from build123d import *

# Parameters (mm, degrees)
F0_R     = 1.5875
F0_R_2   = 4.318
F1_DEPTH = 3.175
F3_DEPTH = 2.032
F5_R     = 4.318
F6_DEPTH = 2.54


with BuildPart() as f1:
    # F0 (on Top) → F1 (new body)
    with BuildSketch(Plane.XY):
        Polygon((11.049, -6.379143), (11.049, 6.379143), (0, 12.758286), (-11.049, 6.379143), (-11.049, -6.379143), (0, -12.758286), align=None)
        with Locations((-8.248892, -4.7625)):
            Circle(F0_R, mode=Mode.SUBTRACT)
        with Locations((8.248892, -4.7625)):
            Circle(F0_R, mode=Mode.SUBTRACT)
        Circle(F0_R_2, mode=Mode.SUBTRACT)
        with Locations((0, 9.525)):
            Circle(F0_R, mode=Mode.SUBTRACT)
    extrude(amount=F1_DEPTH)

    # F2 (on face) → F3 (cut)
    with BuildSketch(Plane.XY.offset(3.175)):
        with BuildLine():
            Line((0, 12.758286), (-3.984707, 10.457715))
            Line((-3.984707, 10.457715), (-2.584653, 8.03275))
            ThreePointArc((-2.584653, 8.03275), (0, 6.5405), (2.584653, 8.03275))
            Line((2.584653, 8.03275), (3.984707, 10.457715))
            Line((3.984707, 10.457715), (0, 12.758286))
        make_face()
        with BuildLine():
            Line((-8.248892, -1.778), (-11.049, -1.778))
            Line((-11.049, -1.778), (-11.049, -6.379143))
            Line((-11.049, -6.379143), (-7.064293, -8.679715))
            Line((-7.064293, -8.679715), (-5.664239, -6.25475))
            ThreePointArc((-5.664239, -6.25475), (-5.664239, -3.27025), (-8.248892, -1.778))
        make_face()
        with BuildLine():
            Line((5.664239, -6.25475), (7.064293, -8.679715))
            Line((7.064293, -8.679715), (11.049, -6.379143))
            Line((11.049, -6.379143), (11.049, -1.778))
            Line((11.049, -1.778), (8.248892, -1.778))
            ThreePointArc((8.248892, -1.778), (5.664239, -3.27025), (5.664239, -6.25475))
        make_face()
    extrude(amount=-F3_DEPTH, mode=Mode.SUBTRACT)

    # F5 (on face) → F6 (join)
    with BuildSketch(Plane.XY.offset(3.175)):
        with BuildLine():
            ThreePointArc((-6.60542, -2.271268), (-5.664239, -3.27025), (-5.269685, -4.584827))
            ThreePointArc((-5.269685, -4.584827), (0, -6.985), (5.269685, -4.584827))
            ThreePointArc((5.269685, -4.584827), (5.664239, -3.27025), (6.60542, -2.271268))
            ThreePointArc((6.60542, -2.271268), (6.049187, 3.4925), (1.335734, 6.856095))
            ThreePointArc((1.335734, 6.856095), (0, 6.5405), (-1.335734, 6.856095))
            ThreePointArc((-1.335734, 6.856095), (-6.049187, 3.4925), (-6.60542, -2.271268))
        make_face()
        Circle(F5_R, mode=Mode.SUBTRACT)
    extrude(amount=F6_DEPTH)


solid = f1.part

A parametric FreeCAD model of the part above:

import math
import FreeCAD as App
import Part
import Sketcher

V = App.Vector
Q = App.Units.Quantity

doc = App.newDocument("Part")
body = doc.addObject("PartDesign::Body", "Body")

# Sketch on XY plane
sketch1 = doc.addObject("Sketcher::SketchObject", "Sketch")
body.addObject(sketch1)
sketch1.AttachmentSupport = (doc.XY_Plane, [""])
sketch1.MapMode = "FlatFace"
sketch1.addGeometry([
    Part.LineSegment(V(11.049, -6.379143, 0), V(11.049, 6.379143, 0)),  # 0
    Part.LineSegment(V(11.049, 6.379143, 0), V(0, 12.758286, 0)),  # 1
    Part.LineSegment(V(0, 12.758286, 0), V(-11.049, 6.379143, 0)),  # 2
    Part.LineSegment(V(-11.049, 6.379143, 0), V(-11.049, -6.379143, 0)),  # 3
    Part.LineSegment(V(-11.049, -6.379143, 0), V(0, -12.758286, 0)),  # 4
    Part.LineSegment(V(0, -12.758286, 0), V(11.049, -6.379143, 0)),  # 5
    Part.Circle(V(-8.248892, -4.7625, 0), V(0, 0, 1), 1.5875),  # 6
    Part.Circle(V(8.248892, -4.7625, 0), V(0, 0, 1), 1.5875),  # 7
    Part.Circle(V(0, 0, 0), V(0, 0, 1), 4.318),  # 8
    Part.Circle(V(0, 9.525, 0), V(0, 0, 1), 1.5875),  # 9
], False)
sketch1.addConstraint([
    Sketcher.Constraint("Coincident", 0, 2, 1, 1),
    Sketcher.Constraint("Coincident", 1, 2, 2, 1),
    Sketcher.Constraint("Coincident", 2, 2, 3, 1),
    Sketcher.Constraint("Coincident", 3, 2, 4, 1),
    Sketcher.Constraint("Coincident", 4, 2, 5, 1),
    Sketcher.Constraint("Coincident", 5, 2, 0, 1),
    Sketcher.Constraint("Vertical", 0),
    Sketcher.Constraint("Vertical", 3),
    Sketcher.Constraint("Coincident", 8, 3, -1, 1),
    Sketcher.Constraint("Equal", 6, 7),
    Sketcher.Constraint("Equal", 7, 9),
    Sketcher.Constraint("Symmetric", 0, 2, 3, 2, -1, 1),
    Sketcher.Constraint("Symmetric", 1, 2, 4, 2, -1, 1),
    Sketcher.Constraint("Symmetric", 6, 3, 7, 3, -2),
    Sketcher.Constraint("PointOnObject", 9, 3, -2),
    Sketcher.Constraint("PointOnObject", 1, 2, -2),
    Sketcher.Constraint("Parallel", 2, 5),
    Sketcher.Constraint("Horizontal", 0, 2, 2, 2),
    Sketcher.Constraint("Diameter", 8, Q("0.34 in")),
    Sketcher.Constraint("Diameter", 6, Q("0.125 in")),
    Sketcher.Constraint("Angle", 1, Q("150 deg")),
    Sketcher.Constraint("DistanceX", 2, 2, 0, 2, Q("0.87 in")),
    Sketcher.Constraint("DistanceY", 6, 3, -1, 1, Q("0.1875 in")),
    Sketcher.Constraint("DistanceY", -1, 1, 9, 3, Q("0.375 in")),
    Sketcher.Constraint("DistanceY", 0, 1, 0, 2, 12.758286),
    Sketcher.Constraint("DistanceX", 6, 3, 0, 2, 19.297892),
])
pad1 = doc.addObject("PartDesign::Pad", "Pad")
body.addObject(pad1)
pad1.Profile = sketch1
pad1.Length = Q("0.125 in")

# Sketch on XY plane
sketch2 = doc.addObject("Sketcher::SketchObject", "Sketch001")
body.addObject(sketch2)
sketch2.AttachmentSupport = (doc.XY_Plane, [""])
sketch2.MapMode = "FlatFace"
sketch2.AttachmentOffset = App.Placement(V(0, 0, 0.125 * 25.4), App.Rotation())
sketch2.addGeometry([
    Part.LineSegment(V(0, 12.758286, 0), V(-3.984707, 10.457715, 0)),  # 0
    Part.LineSegment(V(-3.984707, 10.457715, 0), V(-2.584653, 8.03275, 0)),  # 1
    Part.ArcOfCircle(Part.Circle(V(0, 9.525, 0), V(0, 0, 1), 2.9845), math.radians(-149.999996), math.radians(-30.000004)),  # 2
    Part.LineSegment(V(2.584653, 8.03275, 0), V(3.984707, 10.457715, 0)),  # 3
    Part.LineSegment(V(3.984707, 10.457715, 0), V(0, 12.758286, 0)),  # 4
    Part.LineSegment(V(-8.248892, -1.778, 0), V(-11.049, -1.778, 0)),  # 5
    Part.LineSegment(V(-11.049, -1.778, 0), V(-11.049, -6.379143, 0)),  # 6
    Part.LineSegment(V(-11.049, -6.379143, 0), V(-7.064293, -8.679715, 0)),  # 7
    Part.LineSegment(V(-7.064293, -8.679715, 0), V(-5.664239, -6.25475, 0)),  # 8
    Part.ArcOfCircle(Part.Circle(V(-8.248892, -4.7625, 0), V(0, 0, 1), 2.9845), math.radians(-30), math.radians(90.000003)),  # 9
    Part.LineSegment(V(5.664239, -6.25475, 0), V(7.064293, -8.679715, 0)),  # 10
    Part.LineSegment(V(7.064293, -8.679715, 0), V(11.049, -6.379143, 0)),  # 11
    Part.LineSegment(V(11.049, -6.379143, 0), V(11.049, -1.778, 0)),  # 12
    Part.LineSegment(V(11.049, -1.778, 0), V(8.248892, -1.778, 0)),  # 13
    Part.ArcOfCircle(Part.Circle(V(8.248892, -4.7625, 0), V(0, 0, 1), 2.9845), math.radians(89.999997), math.radians(210)),  # 14
], False)
sketch2.addConstraint([
    Sketcher.Constraint("Coincident", 0, 2, 1, 1),
    Sketcher.Constraint("Tangent", 1, 2, 2, 1),
    Sketcher.Constraint("Tangent", 2, 2, 3, 1),
    Sketcher.Constraint("Coincident", 3, 2, 4, 1),
    Sketcher.Constraint("Coincident", 4, 2, 0, 1),
    Sketcher.Constraint("Coincident", 5, 2, 6, 1),
    Sketcher.Constraint("Coincident", 6, 2, 7, 1),
    Sketcher.Constraint("Coincident", 7, 2, 8, 1),
    Sketcher.Constraint("Tangent", 8, 2, 9, 1),
    Sketcher.Constraint("Tangent", 9, 2, 5, 1),
    Sketcher.Constraint("Coincident", 10, 2, 11, 1),
    Sketcher.Constraint("Coincident", 11, 2, 12, 1),
    Sketcher.Constraint("Coincident", 12, 2, 13, 1),
    Sketcher.Constraint("Tangent", 13, 2, 14, 1),
    Sketcher.Constraint("Tangent", 14, 2, 10, 1),
    Sketcher.Constraint("Horizontal", 5),
    Sketcher.Constraint("Vertical", 6),
    Sketcher.Constraint("Vertical", 12),
    Sketcher.Constraint("Horizontal", 13),
    Sketcher.Constraint("Equal", 2, 9),
    Sketcher.Constraint("Equal", 9, 14),
    Sketcher.Constraint("Symmetric", 9, 3, 14, 3, -2),
    Sketcher.Constraint("Symmetric", 1, 2, 2, 2, -2),
    Sketcher.Constraint("Symmetric", 7, 2, 10, 2, -2),
    Sketcher.Constraint("Symmetric", 6, 2, 11, 2, -2),
    Sketcher.Constraint("PointOnObject", 4, 2, -2),
    Sketcher.Constraint("Perpendicular", 0, 1),
    Sketcher.Constraint("Perpendicular", 3, 4),
    Sketcher.Constraint("Parallel", 4, 7),
    Sketcher.Constraint("Perpendicular", 7, 8),
    Sketcher.Constraint("Equal", 4, 7),
    Sketcher.Constraint("Equal", 3, 8),
    Sketcher.Constraint("Angle", 0, Q("-150.000007 deg")),
    Sketcher.Constraint("Radius", 2, Q("0.1175 in")),
    Sketcher.Constraint("DistanceY", 5, 2, -1, 1, Q("0.07 in")),
    Sketcher.Constraint("DistanceY", -1, 1, 2, 3, Q("0.375 in")),
    Sketcher.Constraint("DistanceX", 5, 2, -1, 1, Q("0.435 in")),
    Sketcher.Constraint("DistanceX", 0, 2, 14, 3, 12.233599),
])
pocket1 = doc.addObject("PartDesign::Pocket", "Pocket")
body.addObject(pocket1)
pocket1.Profile = sketch2
pocket1.Length = Q("0.08 in")

# Sketch on XY plane
sketch3 = doc.addObject("Sketcher::SketchObject", "Sketch002")
body.addObject(sketch3)
sketch3.AttachmentSupport = (doc.XY_Plane, [""])
sketch3.MapMode = "FlatFace"
sketch3.AttachmentOffset = App.Placement(V(0, 0, 0.125 * 25.4), App.Rotation())
sketch3.addGeometry([
    Part.ArcOfCircle(Part.Circle(V(-8.248889, -4.7625, 0), V(0, 0, 1), 2.984498), math.radians(3.412939), math.radians(56.587102)),  # 0
    Part.ArcOfCircle(Part.Circle(V(0, -0.000001, 0), V(0, 0, 1), 6.984999), math.radians(-138.975495), math.radians(-41.024505)),  # 1
    Part.ArcOfCircle(Part.Circle(V(8.248889, -4.7625, 0), V(0, 0, 1), 2.984498), math.radians(123.412898), math.radians(176.587061)),  # 2
    Part.ArcOfCircle(Part.Circle(V(-0.000001, -0.000001, 0), V(0, 0, 1), 6.985001), math.radians(-18.975475), math.radians(78.97548)),  # 3
    Part.ArcOfCircle(Part.Circle(V(0, 9.524998, 0), V(0, 0, 1), 2.984498), math.radians(-116.58707), math.radians(-63.41293)),  # 4
    Part.ArcOfCircle(Part.Circle(V(0.000001, -0.000001, 0), V(0, 0, 1), 6.985001), math.radians(101.02452), math.radians(198.975475)),  # 5
    Part.Circle(V(0, 0, 0), V(0, 0, 1), 4.318),  # 6
], False)
sketch3.addConstraint([
    Sketcher.Constraint("Coincident", 0, 1, 1, 1),
    Sketcher.Constraint("Coincident", 1, 2, 2, 2),
    Sketcher.Constraint("Coincident", 2, 1, 3, 1),
    Sketcher.Constraint("Coincident", 3, 2, 4, 2),
    Sketcher.Constraint("Coincident", 4, 1, 5, 1),
    Sketcher.Constraint("Coincident", 5, 2, 0, 2),
    Sketcher.Constraint("Coincident", 1, 3, -1, 1),
    Sketcher.Constraint("Coincident", 3, 3, -1, 1),
    Sketcher.Constraint("Coincident", 5, 3, -1, 1),
    Sketcher.Constraint("Coincident", 6, 3, -1, 1),
    Sketcher.Constraint("Equal", 0, 2),
    Sketcher.Constraint("Equal", 2, 4),
    Sketcher.Constraint("Equal", 3, 5),
    Sketcher.Constraint("Symmetric", 0, 3, 2, 3, -2),
    Sketcher.Constraint("PointOnObject", 4, 3, -2),
    Sketcher.Constraint("Diameter", 6, Q("0.34 in")),
    Sketcher.Constraint("Radius", 1, Q("0.2749999 in")),
    Sketcher.Constraint("Radius", 3, Q("0.2750001 in")),
    Sketcher.Constraint("Radius", 0, Q("0.1174999 in")),
    Sketcher.Constraint("DistanceY", 0, 3, -1, 1, Q("0.1875 in")),
    Sketcher.Constraint("DistanceY", -1, 1, 4, 3, Q("0.3749999 in")),
    Sketcher.Constraint("DistanceX", 0, 3, -1, 1, 8.248889),
])
pad2 = doc.addObject("PartDesign::Pad", "Pad001")
body.addObject(pad2)
pad2.Profile = sketch3
pad2.Length = Q("0.1 in")

doc.recompute()
